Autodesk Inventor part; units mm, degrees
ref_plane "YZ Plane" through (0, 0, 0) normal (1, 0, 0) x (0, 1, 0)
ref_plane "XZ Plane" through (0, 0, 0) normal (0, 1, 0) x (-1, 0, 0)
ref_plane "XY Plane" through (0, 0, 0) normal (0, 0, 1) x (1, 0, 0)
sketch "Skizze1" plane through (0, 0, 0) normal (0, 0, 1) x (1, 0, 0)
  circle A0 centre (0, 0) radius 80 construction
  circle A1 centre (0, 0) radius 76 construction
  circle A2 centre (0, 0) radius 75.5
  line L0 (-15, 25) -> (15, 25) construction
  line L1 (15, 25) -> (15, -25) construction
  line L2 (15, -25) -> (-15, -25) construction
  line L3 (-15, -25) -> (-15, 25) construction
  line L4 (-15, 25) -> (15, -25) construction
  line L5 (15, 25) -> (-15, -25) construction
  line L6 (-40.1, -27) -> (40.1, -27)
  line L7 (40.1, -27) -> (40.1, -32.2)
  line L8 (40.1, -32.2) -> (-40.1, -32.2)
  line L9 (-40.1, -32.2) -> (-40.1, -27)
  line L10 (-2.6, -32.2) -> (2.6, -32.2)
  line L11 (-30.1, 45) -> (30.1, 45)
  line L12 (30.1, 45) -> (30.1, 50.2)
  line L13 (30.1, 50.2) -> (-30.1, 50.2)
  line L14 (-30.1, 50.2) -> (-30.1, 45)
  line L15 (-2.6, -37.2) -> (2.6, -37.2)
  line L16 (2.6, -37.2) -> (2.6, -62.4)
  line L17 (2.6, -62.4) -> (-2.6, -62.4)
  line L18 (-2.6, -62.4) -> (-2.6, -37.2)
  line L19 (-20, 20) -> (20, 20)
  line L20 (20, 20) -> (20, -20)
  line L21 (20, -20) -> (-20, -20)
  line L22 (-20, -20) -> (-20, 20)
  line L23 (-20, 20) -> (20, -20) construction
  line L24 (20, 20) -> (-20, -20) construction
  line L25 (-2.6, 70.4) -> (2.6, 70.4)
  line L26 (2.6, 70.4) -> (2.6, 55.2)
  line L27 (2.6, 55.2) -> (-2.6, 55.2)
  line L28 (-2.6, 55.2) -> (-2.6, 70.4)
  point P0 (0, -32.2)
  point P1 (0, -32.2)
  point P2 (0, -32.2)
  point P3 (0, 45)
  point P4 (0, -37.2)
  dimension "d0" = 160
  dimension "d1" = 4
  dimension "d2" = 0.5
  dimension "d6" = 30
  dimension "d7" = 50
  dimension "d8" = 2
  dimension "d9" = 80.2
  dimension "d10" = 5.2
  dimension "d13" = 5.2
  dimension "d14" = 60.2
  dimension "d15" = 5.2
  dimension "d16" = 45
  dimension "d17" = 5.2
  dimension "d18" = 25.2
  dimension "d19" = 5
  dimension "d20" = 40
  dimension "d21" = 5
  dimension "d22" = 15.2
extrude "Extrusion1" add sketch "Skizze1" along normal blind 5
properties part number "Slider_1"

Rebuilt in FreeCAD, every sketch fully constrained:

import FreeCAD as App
import Part
import Sketcher

V = App.Vector


def add_polygon(sketch, points):
    """Adds a closed chain of lines whose ends are joined by coincident constraints."""
    first, n = sketch.GeometryCount, len(points)
    for a, b in zip(points, points[1:] + points[:1]):
        sketch.addGeometry(Part.LineSegment(App.Vector(*a, 0), App.Vector(*b, 0)), False)
    for i in range(n):
        sketch.addConstraint(Sketcher.Constraint("Coincident", first + i, 2, first + (i + 1) % n, 1))

doc = App.newDocument("Part")
params = doc.addObject("Spreadsheet::Sheet", "Params")
for row, (alias, value) in enumerate([
    ("sketch1_width", "40 mm"),
    ("sketch1_diameter", "151 mm"),
    ("sketch1_width2", "5.2 mm"),
    ("sketch1_width3", "80.2 mm"),
    ("sketch1_width4", "60.2 mm"),
    ("pad1_length", "5 mm"),
], start=1):
    params.set(f"A{row}", alias)
    params.set(f"B{row}", "=" + value)
    params.setAlias(f"B{row}", alias)

body = doc.addObject("PartDesign::Body", "Body")

sketch1 = body.newObject("Sketcher::SketchObject", "Sketch")
sketch1.AttachmentSupport = (doc.getObject("XY_Plane"), [""])
sketch1.MapMode = "FlatFace"
sketch1.addGeometry(Part.Circle(V(0, 0, 0), V(0, 0, 1), 75.5), False)
add_polygon(sketch1, [(-2.6, -62.4), (-2.6, -37.2), (2.6, -37.2), (2.6, -62.4)])
add_polygon(sketch1, [(-40.1, -32.2), (-40.1, -27), (40.1, -27), (40.1, -32.2)])
add_polygon(sketch1, [(-20, -20), (-20, 20), (20, 20), (20, -20)])
add_polygon(sketch1, [(30.1, 45), (-30.1, 45), (-30.1, 50.2), (30.1, 50.2)])
add_polygon(sketch1, [(-2.6, 55.2), (-2.6, 70.4), (2.6, 70.4), (2.6, 55.2)])
sketch1.addConstraint([
    Sketcher.Constraint("Vertical", 1),
    Sketcher.Constraint("Horizontal", 2),
    Sketcher.Constraint("Vertical", 3),
    Sketcher.Constraint("Horizontal", 4),
    Sketcher.Constraint("Vertical", 5),
    Sketcher.Constraint("Horizontal", 6),
    Sketcher.Constraint("Vertical", 7),
    Sketcher.Constraint("Horizontal", 8),
    Sketcher.Constraint("Vertical", 9),
    Sketcher.Constraint("Horizontal", 10),
    Sketcher.Constraint("Vertical", 11),
    Sketcher.Constraint("Horizontal", 12),
    Sketcher.Constraint("Horizontal", 13),
    Sketcher.Constraint("Vertical", 14),
    Sketcher.Constraint("Horizontal", 15),
    Sketcher.Constraint("Vertical", 16),
    Sketcher.Constraint("Vertical", 17),
    Sketcher.Constraint("Horizontal", 18),
    Sketcher.Constraint("Vertical", 19),
    Sketcher.Constraint("Horizontal", 20),
    Sketcher.Constraint("Coincident", 0, 3, -1, 1),
    Sketcher.Constraint("Symmetric", 9, 2, 11, 2, -1, 1),
    Sketcher.Constraint("Vertical", 4, 2, 17, 2),
    Sketcher.Constraint("Vertical", 3, 2, 18, 2),
    Sketcher.Constraint("Equal", 20, 5),
    Sketcher.Constraint("Equal", 12, 9),
    Sketcher.Constraint("Equal", 7, 14),
    Sketcher.Constraint("DistanceX", 10, 1, 10, 2, 40.0),
    Sketcher.Constraint("Diameter", 0, 151.0),
    Sketcher.Constraint("DistanceX", 2, 1, 2, 2, 5.2),
    Sketcher.Constraint("DistanceX", 6, 1, 6, 2, 80.2),
    Sketcher.Constraint("DistanceX", 13, 2, 13, 1, 60.2),
    Sketcher.Constraint("DistanceY", 1, 1, 1, 2, 25.2),
    Sketcher.Constraint("DistanceY", 17, 1, 17, 2, 15.2),
    Sketcher.Constraint("DistanceY", -1, 1, 13, 2, 45.0),
    Sketcher.Constraint("DistanceY", 2, 2, 7, 2, 5.0),
    Sketcher.Constraint("DistanceY", 15, 2, 19, 2, 5.0),
    Sketcher.Constraint("DistanceY", 5, 2, -1, 1, 27.0),
    Sketcher.Constraint("DistanceX", 5, 2, 13, 2, 10.0),
    Sketcher.Constraint("DistanceX", 1, 2, -1, 1, 2.6),
    Sketcher.Constraint("DistanceX", 5, 2, -1, 1, 40.1),
])
sketch1.setExpression("Constraints[47]", "Params.sketch1_width")
sketch1.setExpression("Constraints[48]", "Params.sketch1_diameter")
sketch1.setExpression("Constraints[49]", "Params.sketch1_width2")
sketch1.setExpression("Constraints[50]", "Params.sketch1_width3")
sketch1.setExpression("Constraints[51]", "Params.sketch1_width4")
pad1 = body.newObject("PartDesign::Pad", "Pad")
pad1.Profile = sketch1
pad1.setExpression("Length", "Params.pad1_length")

doc.recompute()
